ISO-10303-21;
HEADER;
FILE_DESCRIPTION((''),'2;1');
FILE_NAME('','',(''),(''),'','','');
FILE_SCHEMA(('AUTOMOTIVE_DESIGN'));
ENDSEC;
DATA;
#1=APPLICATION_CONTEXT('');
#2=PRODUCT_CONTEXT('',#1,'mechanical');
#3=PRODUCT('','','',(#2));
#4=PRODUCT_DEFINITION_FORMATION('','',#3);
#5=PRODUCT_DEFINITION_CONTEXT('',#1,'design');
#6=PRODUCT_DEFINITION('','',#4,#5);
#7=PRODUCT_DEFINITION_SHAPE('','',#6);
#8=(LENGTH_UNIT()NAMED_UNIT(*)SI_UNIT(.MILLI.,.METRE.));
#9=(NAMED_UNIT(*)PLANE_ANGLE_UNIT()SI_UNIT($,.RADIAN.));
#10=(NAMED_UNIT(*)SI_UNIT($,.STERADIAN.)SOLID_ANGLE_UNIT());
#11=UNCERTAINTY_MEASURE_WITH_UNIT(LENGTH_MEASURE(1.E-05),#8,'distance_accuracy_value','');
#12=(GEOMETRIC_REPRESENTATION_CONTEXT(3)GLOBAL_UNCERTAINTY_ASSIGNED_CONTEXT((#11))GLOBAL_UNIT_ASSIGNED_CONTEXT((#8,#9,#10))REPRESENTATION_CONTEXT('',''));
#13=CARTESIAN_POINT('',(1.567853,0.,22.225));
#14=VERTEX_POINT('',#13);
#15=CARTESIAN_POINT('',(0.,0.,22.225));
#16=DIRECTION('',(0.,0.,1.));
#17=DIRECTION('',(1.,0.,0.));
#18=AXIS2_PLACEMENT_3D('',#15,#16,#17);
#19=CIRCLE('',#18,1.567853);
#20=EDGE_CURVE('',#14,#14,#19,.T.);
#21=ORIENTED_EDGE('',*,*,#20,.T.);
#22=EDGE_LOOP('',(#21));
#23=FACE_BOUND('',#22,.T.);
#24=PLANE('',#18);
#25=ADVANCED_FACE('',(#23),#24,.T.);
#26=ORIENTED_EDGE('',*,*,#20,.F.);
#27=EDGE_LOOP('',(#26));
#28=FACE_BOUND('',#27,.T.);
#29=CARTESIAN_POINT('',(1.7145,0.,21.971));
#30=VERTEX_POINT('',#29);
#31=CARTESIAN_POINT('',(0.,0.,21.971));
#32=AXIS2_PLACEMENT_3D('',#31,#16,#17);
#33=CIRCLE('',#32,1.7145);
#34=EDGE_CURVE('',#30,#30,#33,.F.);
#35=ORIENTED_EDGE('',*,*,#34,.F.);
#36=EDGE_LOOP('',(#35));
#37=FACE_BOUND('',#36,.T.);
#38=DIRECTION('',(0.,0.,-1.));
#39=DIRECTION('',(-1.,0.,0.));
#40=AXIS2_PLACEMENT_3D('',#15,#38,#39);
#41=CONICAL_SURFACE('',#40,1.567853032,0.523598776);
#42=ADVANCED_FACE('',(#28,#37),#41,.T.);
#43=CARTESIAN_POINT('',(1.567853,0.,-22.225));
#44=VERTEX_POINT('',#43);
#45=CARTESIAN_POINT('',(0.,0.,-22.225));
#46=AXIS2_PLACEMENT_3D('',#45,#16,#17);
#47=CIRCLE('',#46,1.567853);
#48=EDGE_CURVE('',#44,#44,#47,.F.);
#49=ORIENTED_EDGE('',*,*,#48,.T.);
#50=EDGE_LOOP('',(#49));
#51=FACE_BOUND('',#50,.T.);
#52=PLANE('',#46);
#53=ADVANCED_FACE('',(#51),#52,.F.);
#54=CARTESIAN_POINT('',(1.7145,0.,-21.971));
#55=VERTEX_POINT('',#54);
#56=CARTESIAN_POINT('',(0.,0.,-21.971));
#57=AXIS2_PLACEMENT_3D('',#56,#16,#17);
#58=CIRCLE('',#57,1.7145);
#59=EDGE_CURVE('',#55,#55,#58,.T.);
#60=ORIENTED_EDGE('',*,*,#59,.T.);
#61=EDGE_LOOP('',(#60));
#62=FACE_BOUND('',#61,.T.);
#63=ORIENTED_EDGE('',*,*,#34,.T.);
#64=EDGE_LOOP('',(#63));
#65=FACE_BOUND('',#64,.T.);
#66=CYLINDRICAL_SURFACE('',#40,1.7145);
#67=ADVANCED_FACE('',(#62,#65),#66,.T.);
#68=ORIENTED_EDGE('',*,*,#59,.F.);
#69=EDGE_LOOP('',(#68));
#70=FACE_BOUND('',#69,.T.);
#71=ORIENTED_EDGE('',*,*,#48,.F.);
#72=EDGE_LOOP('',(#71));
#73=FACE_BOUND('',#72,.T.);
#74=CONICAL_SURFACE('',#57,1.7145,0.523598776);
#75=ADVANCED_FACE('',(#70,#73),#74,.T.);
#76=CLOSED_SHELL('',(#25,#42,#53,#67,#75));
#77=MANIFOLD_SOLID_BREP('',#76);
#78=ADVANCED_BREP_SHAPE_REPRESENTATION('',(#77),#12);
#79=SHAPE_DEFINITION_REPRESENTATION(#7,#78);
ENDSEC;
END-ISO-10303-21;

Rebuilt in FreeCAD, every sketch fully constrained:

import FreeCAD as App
import Part
import Sketcher

V = App.Vector
Q = App.Units.Quantity


def edges_at(feature, points):
    """Names of the edges that pass closest to the given points."""
    edges = feature.Shape.Edges
    near = lambda p: min(range(len(edges)), key=lambda i: edges[i].distToShape(Part.Vertex(*p))[0])
    return sorted({f"Edge{near(p) + 1}" for p in points})

doc = App.newDocument("Part")
body = doc.addObject("PartDesign::Body", "Body")

# Sketch on XY plane
sketch1 = body.newObject("Sketcher::SketchObject", "Sketch")
sketch1.AttachmentSupport = (doc.getObject("XY_Plane"), [""])
sketch1.MapMode = "FlatFace"
sketch1.addGeometry(Part.Circle(V(0, 0, 0), V(0, 0, 1), 1.7), False)
sketch1.addConstraint([
    Sketcher.Constraint("Coincident", 0, 3, -1, 1),
    Sketcher.Constraint("Diameter", 0, Q("0.135 in")),
])
pad1 = body.newObject("PartDesign::Pad", "Pad")
pad1.Profile = sketch1
pad1.Length = Q("1.75 in")
pad1.Midplane = True
doc.recompute()

chamfer = body.newObject("PartDesign::Chamfer", "Chamfer")
chamfer.Base = (pad1, edges_at(pad1, [(-1.714, 0, -22.225), (-1.714, 0, 22.225)]))
chamfer.ChamferType = "Two distances"
chamfer.Size = Q("0.01 in")
chamfer.Size2 = 0.146647

doc.recompute()
